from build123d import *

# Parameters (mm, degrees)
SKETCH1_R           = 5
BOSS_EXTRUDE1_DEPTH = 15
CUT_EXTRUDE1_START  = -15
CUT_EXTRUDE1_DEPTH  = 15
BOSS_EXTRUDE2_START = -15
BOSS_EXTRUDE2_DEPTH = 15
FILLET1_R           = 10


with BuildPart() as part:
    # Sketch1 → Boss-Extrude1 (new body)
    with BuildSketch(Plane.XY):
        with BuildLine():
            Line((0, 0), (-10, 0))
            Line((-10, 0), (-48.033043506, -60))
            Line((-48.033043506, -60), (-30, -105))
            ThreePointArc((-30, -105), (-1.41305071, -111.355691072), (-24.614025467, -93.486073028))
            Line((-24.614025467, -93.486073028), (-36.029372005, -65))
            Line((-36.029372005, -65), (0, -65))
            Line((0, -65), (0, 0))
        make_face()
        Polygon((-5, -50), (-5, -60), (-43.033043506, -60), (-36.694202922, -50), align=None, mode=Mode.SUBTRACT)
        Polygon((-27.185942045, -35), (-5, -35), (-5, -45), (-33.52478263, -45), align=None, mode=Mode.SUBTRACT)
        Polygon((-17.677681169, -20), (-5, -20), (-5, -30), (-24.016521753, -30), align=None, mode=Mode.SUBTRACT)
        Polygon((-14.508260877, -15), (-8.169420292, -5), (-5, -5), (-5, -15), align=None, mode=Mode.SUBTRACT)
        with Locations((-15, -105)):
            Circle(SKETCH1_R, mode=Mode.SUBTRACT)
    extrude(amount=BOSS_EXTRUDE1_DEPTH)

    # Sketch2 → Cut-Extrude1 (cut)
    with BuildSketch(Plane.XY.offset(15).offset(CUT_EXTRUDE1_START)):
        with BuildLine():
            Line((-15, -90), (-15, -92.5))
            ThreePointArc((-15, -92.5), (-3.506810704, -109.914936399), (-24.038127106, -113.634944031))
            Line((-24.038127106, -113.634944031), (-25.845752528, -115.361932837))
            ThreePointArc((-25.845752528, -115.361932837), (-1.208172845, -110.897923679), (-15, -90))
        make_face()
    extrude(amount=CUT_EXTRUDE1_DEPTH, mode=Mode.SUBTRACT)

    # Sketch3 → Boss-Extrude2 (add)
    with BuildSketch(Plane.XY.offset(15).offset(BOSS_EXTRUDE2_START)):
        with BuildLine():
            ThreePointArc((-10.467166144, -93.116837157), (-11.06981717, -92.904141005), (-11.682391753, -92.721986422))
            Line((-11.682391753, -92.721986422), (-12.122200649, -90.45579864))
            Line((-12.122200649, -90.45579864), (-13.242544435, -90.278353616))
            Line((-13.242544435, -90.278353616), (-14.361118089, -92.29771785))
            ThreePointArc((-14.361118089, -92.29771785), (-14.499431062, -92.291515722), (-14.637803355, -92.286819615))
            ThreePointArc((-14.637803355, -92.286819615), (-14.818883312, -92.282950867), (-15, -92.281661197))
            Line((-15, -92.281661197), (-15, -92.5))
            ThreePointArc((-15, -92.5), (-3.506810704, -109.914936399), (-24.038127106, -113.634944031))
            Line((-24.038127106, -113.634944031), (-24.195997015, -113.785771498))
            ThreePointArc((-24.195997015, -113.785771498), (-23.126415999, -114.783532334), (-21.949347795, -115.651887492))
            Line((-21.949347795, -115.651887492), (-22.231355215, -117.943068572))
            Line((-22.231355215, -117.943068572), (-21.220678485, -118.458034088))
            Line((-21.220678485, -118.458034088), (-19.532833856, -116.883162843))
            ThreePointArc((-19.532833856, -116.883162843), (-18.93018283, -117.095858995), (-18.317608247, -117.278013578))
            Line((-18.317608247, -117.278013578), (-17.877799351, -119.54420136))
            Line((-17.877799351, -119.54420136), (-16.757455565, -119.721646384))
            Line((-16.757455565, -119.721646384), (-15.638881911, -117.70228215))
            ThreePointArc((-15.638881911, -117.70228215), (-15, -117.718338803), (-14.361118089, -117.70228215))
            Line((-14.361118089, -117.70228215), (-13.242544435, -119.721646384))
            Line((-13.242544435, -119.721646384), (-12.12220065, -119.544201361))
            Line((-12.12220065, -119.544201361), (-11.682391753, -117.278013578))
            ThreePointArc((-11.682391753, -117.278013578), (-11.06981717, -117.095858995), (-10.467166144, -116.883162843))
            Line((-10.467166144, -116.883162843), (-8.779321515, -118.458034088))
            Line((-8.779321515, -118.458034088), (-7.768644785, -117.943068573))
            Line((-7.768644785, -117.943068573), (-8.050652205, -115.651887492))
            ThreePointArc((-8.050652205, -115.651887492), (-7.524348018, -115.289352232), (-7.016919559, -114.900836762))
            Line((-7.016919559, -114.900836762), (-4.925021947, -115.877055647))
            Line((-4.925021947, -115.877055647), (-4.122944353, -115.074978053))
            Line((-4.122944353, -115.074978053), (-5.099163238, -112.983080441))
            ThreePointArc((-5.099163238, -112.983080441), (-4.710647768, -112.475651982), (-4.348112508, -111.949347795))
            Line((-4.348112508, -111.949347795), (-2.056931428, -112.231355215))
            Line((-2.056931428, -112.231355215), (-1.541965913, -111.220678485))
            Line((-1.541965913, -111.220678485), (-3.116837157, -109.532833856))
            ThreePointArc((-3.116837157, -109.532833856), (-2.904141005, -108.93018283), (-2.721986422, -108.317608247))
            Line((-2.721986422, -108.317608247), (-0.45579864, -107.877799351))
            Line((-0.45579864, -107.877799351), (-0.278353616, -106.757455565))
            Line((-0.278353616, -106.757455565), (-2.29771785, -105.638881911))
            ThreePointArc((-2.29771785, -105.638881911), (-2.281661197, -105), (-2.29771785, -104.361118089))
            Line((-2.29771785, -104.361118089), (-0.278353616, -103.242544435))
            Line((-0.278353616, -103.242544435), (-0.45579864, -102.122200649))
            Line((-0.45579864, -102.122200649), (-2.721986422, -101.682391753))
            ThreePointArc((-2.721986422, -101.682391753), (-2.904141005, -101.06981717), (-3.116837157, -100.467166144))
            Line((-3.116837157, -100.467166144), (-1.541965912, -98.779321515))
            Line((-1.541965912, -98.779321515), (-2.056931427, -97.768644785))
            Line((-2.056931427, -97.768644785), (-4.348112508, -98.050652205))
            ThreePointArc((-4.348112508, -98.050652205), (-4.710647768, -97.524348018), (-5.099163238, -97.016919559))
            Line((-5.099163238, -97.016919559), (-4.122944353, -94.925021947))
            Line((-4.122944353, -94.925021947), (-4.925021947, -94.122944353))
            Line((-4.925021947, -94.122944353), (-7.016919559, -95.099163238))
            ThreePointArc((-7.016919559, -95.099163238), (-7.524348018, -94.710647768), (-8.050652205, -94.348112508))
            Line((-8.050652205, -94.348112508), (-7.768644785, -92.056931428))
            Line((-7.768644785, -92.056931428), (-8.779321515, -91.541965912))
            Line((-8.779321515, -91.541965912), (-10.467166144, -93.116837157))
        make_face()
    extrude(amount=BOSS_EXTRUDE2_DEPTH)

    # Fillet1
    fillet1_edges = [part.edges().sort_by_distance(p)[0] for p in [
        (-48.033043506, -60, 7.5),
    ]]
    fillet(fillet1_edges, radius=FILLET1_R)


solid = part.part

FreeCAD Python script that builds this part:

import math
import FreeCAD as App
import Part
import Sketcher
from FreeCAD import Vector
Q = App.Units.Quantity


def edges_at(feature, points):
    """Names of the edges that pass closest to the given points."""
    edges = feature.Shape.Edges
    near = lambda p: min(range(len(edges)), key=lambda i: edges[i].distToShape(Part.Vertex(*p))[0])
    return sorted({f"Edge{near(p) + 1}" for p in points})


def add_polygon(sketch, points):
    """Adds a closed chain of lines whose ends are joined by coincident constraints."""
    first, n = sketch.GeometryCount, len(points)
    for a, b in zip(points, points[1:] + points[:1]):
        sketch.addGeometry(Part.LineSegment(App.Vector(*a, 0), App.Vector(*b, 0)), False)
    for i in range(n):
        sketch.addConstraint(Sketcher.Constraint("Coincident", first + i, 2, first + (i + 1) % n, 1))

doc = App.newDocument("Part")
params = doc.addObject("Spreadsheet::Sheet", "Params")
for row, (alias, value) in enumerate([
    ("sketch1_diameter", "10 mm"),
    ("sketch1_radius", "15 mm"),
    ("sketch1_width", "10 mm"),
    ("sketch1_height", "65 mm"),
    ("pad1_length", "15 mm"),
    ("sketch2_radius", "15 mm"),
    ("sketch2_radius2", "12.5 mm"),
    ("pocket1_length", "15 mm"),
    ("sketch3_radius", "12.5 mm"),
    ("pad2_length", "15 mm"),
    ("fillet_radius", "10 mm"),
], start=1):
    params.set(f"A{row}", alias)
    params.set(f"B{row}", "=" + value)
    params.setAlias(f"B{row}", alias)

body = doc.addObject("PartDesign::Body", "Body")

# Sketch on XY plane
sketch1 = doc.addObject("Sketcher::SketchObject", "Sketch")
body.addObject(sketch1)
sketch1.AttachmentSupport = (doc.XY_Plane, [""])
sketch1.MapMode = "FlatFace"
sketch1.addGeometry(Part.LineSegment(Vector(0, 0, 0), Vector(-10, 0, 0)), False)  # 0
sketch1.addGeometry(Part.LineSegment(Vector(-10, 0, 0), Vector(-48.033044, -60, 0)), False)  # 1
sketch1.addGeometry(Part.LineSegment(Vector(-48.033044, -60, 0), Vector(-30, -105, 0)), False)  # 2
sketch1.addGeometry(Part.ArcOfCircle(Part.Circle(Vector(-15, -105, 0), Vector(0, 0, 1), 15), math.radians(180), math.radians(489.861578)), False)  # 3
sketch1.addGeometry(Part.LineSegment(Vector(-24.614025, -93.486073, 0), Vector(-36.029372, -65, 0)), False)  # 4
sketch1.addGeometry(Part.LineSegment(Vector(-36.029372, -65, 0), Vector(0, -65, 0)), False)  # 5
sketch1.addGeometry(Part.LineSegment(Vector(0, -65, 0), Vector(0, 0, 0)), False)  # 6
sketch1.addGeometry(Part.Circle(Vector(-15, -105, 0), Vector(0, 0, 1), 5), False)  # 7
add_polygon(sketch1, [(-36.694203, -50), (-5, -50), (-5, -60), (-43.033044, -60)])  # lines 8-11
add_polygon(sketch1, [(-33.524783, -45), (-27.185942, -35), (-5, -35), (-5, -45)])  # lines 12-15
add_polygon(sketch1, [(-24.016522, -30), (-17.677681, -20), (-5, -20), (-5, -30)])  # lines 16-19
add_polygon(sketch1, [(-5, -15), (-14.508261, -15), (-8.16942, -5), (-5, -5)])  # lines 20-23
sketch1.addConstraint([
    Sketcher.Constraint("Coincident", 0, 2, 1, 1),
    Sketcher.Constraint("Coincident", 1, 2, 2, 1),
    Sketcher.Constraint("Coincident", 2, 2, 3, 1),
    Sketcher.Constraint("Coincident", 3, 2, 4, 1),
    Sketcher.Constraint("Coincident", 4, 2, 5, 1),
    Sketcher.Constraint("Coincident", 5, 2, 6, 1),
    Sketcher.Constraint("Coincident", 6, 2, 0, 1),
    Sketcher.Constraint("Horizontal", 0),
    Sketcher.Constraint("Horizontal", 5),
    Sketcher.Constraint("Vertical", 6),
    Sketcher.Constraint("Horizontal", 8),
    Sketcher.Constraint("Vertical", 9),
    Sketcher.Constraint("Horizontal", 10),
    Sketcher.Constraint("Horizontal", 13),
    Sketcher.Constraint("Vertical", 14),
    Sketcher.Constraint("Horizontal", 15),
    Sketcher.Constraint("Horizontal", 17),
    Sketcher.Constraint("Vertical", 18),
    Sketcher.Constraint("Horizontal", 19),
    Sketcher.Constraint("Horizontal", 20),
    Sketcher.Constraint("Horizontal", 22),
    Sketcher.Constraint("Vertical", 23),
    Sketcher.Constraint("Coincident", 6, 2, -1, 1),
    Sketcher.Constraint("Coincident", 7, 3, 3, 3),
    Sketcher.Constraint("Parallel", 2, 4),
    Sketcher.Constraint("Parallel", 1, 11),
    Sketcher.Constraint("Parallel", 11, 12),
    Sketcher.Constraint("Parallel", 12, 16),
    Sketcher.Constraint("Parallel", 16, 21),
    Sketcher.Constraint("Horizontal", 7, 3, 2, 2),
    Sketcher.Constraint("Horizontal", 1, 2, 9, 2),
    Sketcher.Constraint("Vertical", 9, 2, 13, 2),
    Sketcher.Constraint("Vertical", 14, 2, 17, 2),
    Sketcher.Constraint("Vertical", 18, 2, 22, 2),
    Sketcher.Constraint("Equal", 0, 9),
    Sketcher.Constraint("Equal", 9, 14),
    Sketcher.Constraint("Equal", 14, 18),
    Sketcher.Constraint("Equal", 18, 23),
    Sketcher.Constraint("Diameter", 7, Q("10 mm")),
    Sketcher.Constraint("Radius", 3, Q("15 mm")),
    Sketcher.Constraint("DistanceX", 0, 2, 0, 1, Q("10 mm")),
    Sketcher.Constraint("DistanceY", 6, 1, 6, 2, Q("65 mm")),
    Sketcher.Constraint("DistanceX", 3, 3, -1, 1, Q("15 mm")),
    Sketcher.Constraint("DistanceY", 3, 3, -1, 1, Q("105 mm")),
    Sketcher.Constraint("DistanceY", 1, 2, -1, 1, Q("60 mm")),
    Sketcher.Constraint("DistanceX", 8, 2, -1, 1, Q("5 mm")),
    Sketcher.Constraint("DistanceY", 12, 2, -1, 1, Q("35 mm")),
    Sketcher.Constraint("DistanceY", 16, 2, -1, 1, Q("20 mm")),
    Sketcher.Constraint("DistanceY", 20, 2, -1, 1, Q("15 mm")),
    Sketcher.Constraint("DistanceX", 1, 2, 10, 2, Q("5 mm")),
    Sketcher.Constraint("Distance", 11, Q("11.839802 mm")),
    Sketcher.Constraint("DistanceX", 17, 1, 17, 2, Q("12.677681 mm")),
    Sketcher.Constraint("DistanceX", 20, 2, 20, 1, Q("9.508261 mm")),
    Sketcher.Constraint("DistanceX", 10, 2, 12, 2, Q("15.847101 mm")),
    Sketcher.Constraint("DistanceX", 5, 1, 5, 2, Q("36.029372 mm")),
])
sketch1.setExpression("Constraints[54]", "Params.sketch1_diameter")
sketch1.setExpression("Constraints[55]", "Params.sketch1_radius")
sketch1.setExpression("Constraints[56]", "Params.sketch1_width")
sketch1.setExpression("Constraints[57]", "Params.sketch1_height")
pad1 = doc.addObject("PartDesign::Pad", "Pad")
body.addObject(pad1)
pad1.Profile = sketch1
pad1.setExpression("Length", "Params.pad1_length")

# Sketch on XY plane
sketch2 = doc.addObject("Sketcher::SketchObject", "Sketch001")
body.addObject(sketch2)
sketch2.AttachmentSupport = (doc.XY_Plane, [""])
sketch2.MapMode = "FlatFace"
sketch2.addGeometry([
    Part.LineSegment(Vector(-15, -90, 0), Vector(-15, -92.5, 0)),
    Part.ArcOfCircle(Part.Circle(Vector(-15, -105, 0), Vector(0, 0, 1), 12.5), math.radians(-136.306886), math.radians(90)),
    Part.LineSegment(Vector(-24.038127, -113.634944, 0), Vector(-25.845753, -115.361933, 0)),
    Part.ArcOfCircle(Part.Circle(Vector(-15, -105, 0), Vector(0, 0, 1), 15), math.radians(-136.306886), math.radians(90)),
], False)
sketch2.addConstraint([
    Sketcher.Constraint("Coincident", 0, 2, 1, 2),
    Sketcher.Constraint("Coincident", 1, 1, 2, 1),
    Sketcher.Constraint("Coincident", 2, 2, 3, 1),
    Sketcher.Constraint("Coincident", 3, 2, 0, 1),
    Sketcher.Constraint("Vertical", 0),
    Sketcher.Constraint("Coincident", 3, 3, 1, 3),
    Sketcher.Constraint("Vertical", 3, 3, 0, 2),
    Sketcher.Constraint("Radius", 3, Q("15 mm")),
    Sketcher.Constraint("Radius", 1, Q("12.5 mm")),
    Sketcher.Constraint("DistanceX", 1, 3, -1, 1, Q("15 mm")),
    Sketcher.Constraint("DistanceY", 1, 3, -1, 1, Q("105 mm")),
    Sketcher.Constraint("DistanceY", 2, 2, 1, 1, Q("1.726989 mm")),
    Sketcher.Constraint("DistanceX", 1, 1, -1, 1, Q("24.038127 mm")),
])
sketch2.setExpression("Constraints[7]", "Params.sketch2_radius")
sketch2.setExpression("Constraints[8]", "Params.sketch2_radius2")
pocket1 = doc.addObject("PartDesign::Pocket", "Pocket")
body.addObject(pocket1)
pocket1.Profile = sketch2
pocket1.setExpression("Length", "Params.pocket1_length")
pocket1.Reversed = True

# Sketch on XY plane
sketch3 = doc.addObject("Sketcher::SketchObject", "Sketch002")
body.addObject(sketch3)
sketch3.AttachmentSupport = (doc.XY_Plane, [""])
sketch3.MapMode = "FlatFace"
sketch3.addGeometry([
    Part.ArcOfCircle(Part.Circle(Vector(-15, -105, 0), Vector(0, 0, 1), 12.718339), math.radians(69.120642), math.radians(74.879358)),  # 0
    Part.LineSegment(Vector(-11.682392, -92.721986, 0), Vector(-12.122201, -90.455799, 0)),  # 1
    Part.LineSegment(Vector(-12.122201, -90.455799, 0), Vector(-13.242544, -90.278354, 0)),  # 2
    Part.LineSegment(Vector(-13.242544, -90.278354, 0), Vector(-14.361118, -92.297718, 0)),  # 3
    Part.ArcOfCircle(Part.Circle(Vector(-15, -105.000005, 0), Vector(0, 0, 1), 12.718343), math.radians(87.120642), math.radians(88.368093)),  # 4
    Part.ArcOfCircle(Part.Circle(Vector(-15, -105.000001, 0), Vector(0, 0, 1), 12.71834), math.radians(88.368093), math.radians(90)),  # 5
    Part.LineSegment(Vector(-15, -92.281661, 0), Vector(-15, -92.5, 0)),  # 6
    Part.ArcOfCircle(Part.Circle(Vector(-15, -105, 0), Vector(0, 0, 1), 12.5), math.radians(-136.306886), math.radians(90)),  # 7
    Part.LineSegment(Vector(-24.038127, -113.634944, 0), Vector(-24.195997, -113.785771, 0)),  # 8
    Part.ArcOfCircle(Part.Circle(Vector(-15, -105, 0), Vector(0, 0, 1), 12.718339), math.radians(-136.306886), math.radians(-123.120642)),  # 9
    Part.LineSegment(Vector(-21.949348, -115.651887, 0), Vector(-22.231355, -117.943069, 0)),  # 10
    Part.LineSegment(Vector(-22.231355, -117.943069, 0), Vector(-21.220678, -118.458034, 0)),  # 11
    Part.LineSegment(Vector(-21.220678, -118.458034, 0), Vector(-19.532834, -116.883163, 0)),  # 12
    Part.ArcOfCircle(Part.Circle(Vector(-15, -105, 0), Vector(0, 0, 1), 12.718339), math.radians(-110.879358), math.radians(-105.120642)),  # 13
    Part.LineSegment(Vector(-18.317608, -117.278014, 0), Vector(-17.877799, -119.544201, 0)),  # 14
    Part.LineSegment(Vector(-17.877799, -119.544201, 0), Vector(-16.757456, -119.721646, 0)),  # 15
    Part.LineSegment(Vector(-16.757456, -119.721646, 0), Vector(-15.638882, -117.702282, 0)),  # 16
    Part.ArcOfCircle(Part.Circle(Vector(-15, -105, 0), Vector(0, 0, 1), 12.718339), math.radians(-92.879358), math.radians(-87.120642)),  # 17
    Part.LineSegment(Vector(-14.361118, -117.702282, 0), Vector(-13.242544, -119.721646, 0)),  # 18
    Part.LineSegment(Vector(-13.242544, -119.721646, 0), Vector(-12.122201, -119.544201, 0)),  # 19
    Part.LineSegment(Vector(-12.122201, -119.544201, 0), Vector(-11.682392, -117.278014, 0)),  # 20
    Part.ArcOfCircle(Part.Circle(Vector(-15, -105, 0), Vector(0, 0, 1), 12.718339), math.radians(-74.879358), math.radians(-69.120642)),  # 21
    Part.LineSegment(Vector(-10.467166, -116.883163, 0), Vector(-8.779322, -118.458034, 0)),  # 22
    Part.LineSegment(Vector(-8.779322, -118.458034, 0), Vector(-7.768645, -117.943069, 0)),  # 23
    Part.LineSegment(Vector(-7.768645, -117.943069, 0), Vector(-8.050652, -115.651887, 0)),  # 24
    Part.ArcOfCircle(Part.Circle(Vector(-15, -105, 0), Vector(0, 0, 1), 12.718339), math.radians(-56.879358), math.radians(-51.120642)),  # 25
    Part.LineSegment(Vector(-7.01692, -114.900837, 0), Vector(-4.925022, -115.877056, 0)),  # 26
    Part.LineSegment(Vector(-4.925022, -115.877056, 0), Vector(-4.122944, -115.074978, 0)),  # 27
    Part.LineSegment(Vector(-4.122944, -115.074978, 0), Vector(-5.099163, -112.98308, 0)),  # 28
    Part.ArcOfCircle(Part.Circle(Vector(-15, -105, 0), Vector(0, 0, 1), 12.718339), math.radians(-38.879358), math.radians(-33.120642)),  # 29
    Part.LineSegment(Vector(-4.348113, -111.949348, 0), Vector(-2.056931, -112.231355, 0)),  # 30
    Part.LineSegment(Vector(-2.056931, -112.231355, 0), Vector(-1.541966, -111.220678, 0)),  # 31
    Part.LineSegment(Vector(-1.541966, -111.220678, 0), Vector(-3.116837, -109.532834, 0)),  # 32
    Part.ArcOfCircle(Part.Circle(Vector(-15, -105, 0), Vector(0, 0, 1), 12.718339), math.radians(-20.879358), math.radians(-15.120642)),  # 33
    Part.LineSegment(Vector(-2.721986, -108.317608, 0), Vector(-0.455799, -107.877799, 0)),  # 34
    Part.LineSegment(Vector(-0.455799, -107.877799, 0), Vector(-0.278354, -106.757456, 0)),  # 35
    Part.LineSegment(Vector(-0.278354, -106.757456, 0), Vector(-2.297718, -105.638882, 0)),  # 36
    Part.ArcOfCircle(Part.Circle(Vector(-15, -105, 0), Vector(0, 0, 1), 12.718339), math.radians(-2.879358), math.radians(2.879358)),  # 37
    Part.LineSegment(Vector(-2.297718, -104.361118, 0), Vector(-0.278354, -103.242544, 0)),  # 38
    Part.LineSegment(Vector(-0.278354, -103.242544, 0), Vector(-0.455799, -102.122201, 0)),  # 39
    Part.LineSegment(Vector(-0.455799, -102.122201, 0), Vector(-2.721986, -101.682392, 0)),  # 40
    Part.ArcOfCircle(Part.Circle(Vector(-15, -105, 0), Vector(0, 0, 1), 12.718339), math.radians(15.120642), math.radians(20.879358)),  # 41
    Part.LineSegment(Vector(-3.116837, -100.467166, 0), Vector(-1.541966, -98.779322, 0)),  # 42
    Part.LineSegment(Vector(-1.541966, -98.779322, 0), Vector(-2.056931, -97.768645, 0)),  # 43
    Part.LineSegment(Vector(-2.056931, -97.768645, 0), Vector(-4.348113, -98.050652, 0)),  # 44
    Part.ArcOfCircle(Part.Circle(Vector(-15, -105, 0), Vector(0, 0, 1), 12.718339), math.radians(33.120642), math.radians(38.879358)),  # 45
    Part.LineSegment(Vector(-5.099163, -97.01692, 0), Vector(-4.122944, -94.925022, 0)),  # 46
    Part.LineSegment(Vector(-4.122944, -94.925022, 0), Vector(-4.925022, -94.122944, 0)),  # 47
    Part.LineSegment(Vector(-4.925022, -94.122944, 0), Vector(-7.01692, -95.099163, 0)),  # 48
    Part.ArcOfCircle(Part.Circle(Vector(-15, -105, 0), Vector(0, 0, 1), 12.718339), math.radians(51.120642), math.radians(56.879358)),  # 49
    Part.LineSegment(Vector(-8.050652, -94.348113, 0), Vector(-7.768645, -92.056931, 0)),  # 50
    Part.LineSegment(Vector(-7.768645, -92.056931, 0), Vector(-8.779322, -91.541966, 0)),  # 51
    Part.LineSegment(Vector(-8.779322, -91.541966, 0), Vector(-10.467166, -93.116837, 0)),  # 52
], False)
sketch3.addConstraint([
    Sketcher.Constraint("Coincident", 0, 2, 1, 1),
    Sketcher.Constraint("Coincident", 1, 2, 2, 1),
    Sketcher.Constraint("Coincident", 2, 2, 3, 1),
    Sketcher.Constraint("Coincident", 3, 2, 4, 1),
    Sketcher.Constraint("Tangent", 4, 2, 5, 1),
    Sketcher.Constraint("Coincident", 5, 2, 6, 1),
    Sketcher.Constraint("Coincident", 6, 2, 7, 2),
    Sketcher.Constraint("Coincident", 7, 1, 8, 1),
    Sketcher.Constraint("Coincident", 8, 2, 9, 1),
    Sketcher.Constraint("Coincident", 9, 2, 10, 1),
    Sketcher.Constraint("Coincident", 10, 2, 11, 1),
    Sketcher.Constraint("Coincident", 11, 2, 12, 1),
    Sketcher.Constraint("Coincident", 12, 2, 13, 1),
    Sketcher.Constraint("Coincident", 13, 2, 14, 1),
    Sketcher.Constraint("Coincident", 14, 2, 15, 1),
    Sketcher.Constraint("Coincident", 15, 2, 16, 1),
    Sketcher.Constraint("Coincident", 16, 2, 17, 1),
    Sketcher.Constraint("Coincident", 17, 2, 18, 1),
    Sketcher.Constraint("Coincident", 18, 2, 19, 1),
    Sketcher.Constraint("Coincident", 19, 2, 20, 1),
    Sketcher.Constraint("Coincident", 20, 2, 21, 1),
    Sketcher.Constraint("Coincident", 21, 2, 22, 1),
    Sketcher.Constraint("Coincident", 22, 2, 23, 1),
    Sketcher.Constraint("Coincident", 23, 2, 24, 1),
    Sketcher.Constraint("Coincident", 24, 2, 25, 1),
    Sketcher.Constraint("Coincident", 25, 2, 26, 1),
    Sketcher.Constraint("Coincident", 26, 2, 27, 1),
    Sketcher.Constraint("Coincident", 27, 2, 28, 1),
    Sketcher.Constraint("Coincident", 28, 2, 29, 1),
    Sketcher.Constraint("Coincident", 29, 2, 30, 1),
    Sketcher.Constraint("Coincident", 30, 2, 31, 1),
    Sketcher.Constraint("Coincident", 31, 2, 32, 1),
    Sketcher.Constraint("Coincident", 32, 2, 33, 1),
    Sketcher.Constraint("Coincident", 33, 2, 34, 1),
    Sketcher.Constraint("Coincident", 34, 2, 35, 1),
    Sketcher.Constraint("Coincident", 35, 2, 36, 1),
    Sketcher.Constraint("Coincident", 36, 2, 37, 1),
    Sketcher.Constraint("Coincident", 37, 2, 38, 1),
    Sketcher.Constraint("Coincident", 38, 2, 39, 1),
    Sketcher.Constraint("Coincident", 39, 2, 40, 1),
    Sketcher.Constraint("Coincident", 40, 2, 41, 1),
    Sketcher.Constraint("Coincident", 41, 2, 42, 1),
    Sketcher.Constraint("Coincident", 42, 2, 43, 1),
    Sketcher.Constraint("Coincident", 43, 2, 44, 1),
    Sketcher.Constraint("Coincident", 44, 2, 45, 1),
    Sketcher.Constraint("Coincident", 45, 2, 46, 1),
    Sketcher.Constraint("Coincident", 46, 2, 47, 1),
    Sketcher.Constraint("Coincident", 47, 2, 48, 1),
    Sketcher.Constraint("Coincident", 48, 2, 49, 1),
    Sketcher.Constraint("Coincident", 49, 2, 50, 1),
    Sketcher.Constraint("Coincident", 50, 2, 51, 1),
    Sketcher.Constraint("Coincident", 51, 2, 52, 1),
    Sketcher.Constraint("Coincident", 52, 2, 0, 1),
    Sketcher.Constraint("Vertical", 6),
    Sketcher.Constraint("Coincident", 4, 3, 0, 3),
    Sketcher.Constraint("Coincident", 7, 3, 0, 3),
    Sketcher.Constraint("Coincident", 9, 3, 0, 3),
    Sketcher.Constraint("Coincident", 13, 3, 0, 3),
    Sketcher.Constraint("Coincident", 17, 3, 0, 3),
    Sketcher.Constraint("Coincident", 21, 3, 0, 3),
    Sketcher.Constraint("Coincident", 25, 3, 0, 3),
    Sketcher.Constraint("Coincident", 29, 3, 0, 3),
    Sketcher.Constraint("Coincident", 33, 3, 0, 3),
    Sketcher.Constraint("Coincident", 37, 3, 0, 3),
    Sketcher.Constraint("Coincident", 41, 3, 0, 3),
    Sketcher.Constraint("Coincident", 45, 3, 0, 3),
    Sketcher.Constraint("Coincident", 49, 3, 0, 3),
    Sketcher.Constraint("Equal", 0, 5),
    Sketcher.Constraint("Equal", 5, 9),
    Sketcher.Constraint("Equal", 9, 13),
    Sketcher.Constraint("Equal", 13, 17),
    Sketcher.Constraint("Equal", 17, 21),
    Sketcher.Constraint("Equal", 21, 25),
    Sketcher.Constraint("Equal", 25, 29),
    Sketcher.Constraint("Equal", 29, 33),
    Sketcher.Constraint("Equal", 33, 37),
    Sketcher.Constraint("Equal", 37, 41),
    Sketcher.Constraint("Equal", 41, 45),
    Sketcher.Constraint("Equal", 45, 49),
    Sketcher.Constraint("Parallel", 1, 14),
    Sketcher.Constraint("Parallel", 2, 15),
    Sketcher.Constraint("Parallel", 3, 16),
    Sketcher.Constraint("Perpendicular", 10, 30),
    Sketcher.Constraint("Perpendicular", 11, 31),
    Sketcher.Constraint("Perpendicular", 12, 32),
    Sketcher.Constraint("Perpendicular", 14, 34),
    Sketcher.Constraint("Perpendicular", 15, 35),
    Sketcher.Constraint("Perpendicular", 16, 36),
    Sketcher.Constraint("Perpendicular", 18, 38),
    Sketcher.Constraint("Perpendicular", 19, 39),
    Sketcher.Constraint("Perpendicular", 20, 40),
    Sketcher.Constraint("Perpendicular", 22, 42),
    Sketcher.Constraint("Perpendicular", 23, 43),
    Sketcher.Constraint("Perpendicular", 24, 44),
    Sketcher.Constraint("Perpendicular", 26, 46),
    Sketcher.Constraint("Perpendicular", 27, 47),
    Sketcher.Constraint("Perpendicular", 28, 48),
    Sketcher.Constraint("Perpendicular", 30, 50),
    Sketcher.Constraint("Perpendicular", 31, 51),
    Sketcher.Constraint("Perpendicular", 32, 52),
    Sketcher.Constraint("Horizontal", 16, 2, 17, 2),
    Sketcher.Constraint("Horizontal", 15, 2, 18, 2),
    Sketcher.Constraint("Horizontal", 14, 2, 19, 2),
    Sketcher.Constraint("Horizontal", 13, 2, 20, 2),
    Sketcher.Constraint("Horizontal", 12, 2, 21, 2),
    Sketcher.Constraint("Horizontal", 11, 2, 22, 2),
    Sketcher.Constraint("Horizontal", 10, 2, 23, 2),
    Sketcher.Constraint("Horizontal", 9, 2, 24, 2),
    Sketcher.Constraint("Vertical", 49, 3, 5, 2),
    Sketcher.Constraint("Vertical", 3, 2, 17, 2),
    Sketcher.Constraint("Vertical", 2, 2, 18, 2),
    Sketcher.Constraint("Vertical", 1, 2, 19, 2),
    Sketcher.Constraint("Vertical", 0, 2, 20, 2),
    Sketcher.Constraint("Vertical", 36, 2, 37, 2),
    Sketcher.Constraint("Vertical", 35, 2, 38, 2),
    Sketcher.Constraint("Vertical", 34, 2, 39, 2),
    Sketcher.Constraint("Vertical", 32, 2, 41, 2),
    Sketcher.Constraint("Vertical", 31, 2, 42, 2),
    Sketcher.Constraint("Vertical", 30, 2, 43, 2),
    Sketcher.Constraint("Vertical", 28, 2, 45, 2),
    Sketcher.Constraint("Vertical", 27, 2, 46, 2),
    Sketcher.Constraint("Vertical", 26, 2, 47, 2),
    Sketcher.Constraint("Vertical", 25, 2, 48, 2),
    Sketcher.Constraint("Vertical", 24, 2, 49, 2),
    Sketcher.Constraint("Vertical", 23, 2, 50, 2),
    Sketcher.Constraint("Vertical", 22, 2, 51, 2),
    Sketcher.Constraint("Vertical", 21, 2, 52, 2),
    Sketcher.Constraint("Equal", 1, 3),
    Sketcher.Constraint("Equal", 3, 10),
    Sketcher.Constraint("Equal", 2, 11),
    Sketcher.Constraint("Equal", 10, 12),
    Sketcher.Constraint("Equal", 12, 14),
    Sketcher.Constraint("Equal", 11, 15),
    Sketcher.Constraint("Equal", 20, 22),
    Sketcher.Constraint("Equal", 24, 26),
    Sketcher.Constraint("Equal", 23, 27),
    Sketcher.Constraint("Equal", 26, 28),
    Sketcher.Constraint("Equal", 28, 30),
    Sketcher.Constraint("Equal", 27, 31),
    Sketcher.Constraint("Equal", 30, 32),
    Sketcher.Constraint("Equal", 32, 34),
    Sketcher.Constraint("Equal", 31, 35),
    Sketcher.Constraint("Equal", 34, 36),
    Sketcher.Constraint("Equal", 44, 46),
    Sketcher.Constraint("Radius", 7, Q("12.5 mm")),
    Sketcher.Constraint("Angle", 2, Q("171 deg")),
    Sketcher.Constraint("Angle", 11, Q("-27 deg")),
    Sketcher.Constraint("DistanceX", 0, 3, -1, 1, Q("15 mm")),
    Sketcher.Constraint("DistanceY", 0, 3, -1, 1, Q("105 mm")),
    Sketcher.Constraint("Radius", 0, Q("12.718339 mm")),
    Sketcher.Constraint("DistanceX", 1, 2, -1, 1, Q("12.122201 mm")),
    Sketcher.Constraint("DistanceY", 1, 2, -1, 1, Q("90.455799 mm")),
    Sketcher.Constraint("Distance", 1, Q("2.308471 mm")),
    Sketcher.Constraint("Distance", 2, Q("1.134309 mm")),
    Sketcher.Constraint("DistanceY", 4, 2, -1, 1, Q("92.28682 mm")),
    Sketcher.Constraint("DistanceY", 8, 2, -1, 1, Q("113.785771 mm")),
    Sketcher.Constraint("DistanceY", 10, 2, -1, 1, Q("117.943069 mm")),
    Sketcher.Constraint("DistanceX", 11, 2, -1, 1, Q("21.220678 mm")),
    Sketcher.Constraint("DistanceX", 25, 2, -1, 1, Q("7.01692 mm")),
    Sketcher.Constraint("DistanceX", 7, 1, -1, 1, Q("24.038127 mm")),
])
sketch3.setExpression("Constraints[144]", "Params.sketch3_radius")
pad2 = doc.addObject("PartDesign::Pad", "Pad001")
body.addObject(pad2)
pad2.Profile = sketch3
pad2.setExpression("Length", "Params.pad2_length")
doc.recompute()

fillet = doc.addObject("PartDesign::Fillet", "Fillet")
body.addObject(fillet)
fillet.Base = (pad2, edges_at(pad2, [(-48.033, -60, 7.5)]))
fillet.setExpression("Radius", "Params.fillet_radius")

doc.recompute()
